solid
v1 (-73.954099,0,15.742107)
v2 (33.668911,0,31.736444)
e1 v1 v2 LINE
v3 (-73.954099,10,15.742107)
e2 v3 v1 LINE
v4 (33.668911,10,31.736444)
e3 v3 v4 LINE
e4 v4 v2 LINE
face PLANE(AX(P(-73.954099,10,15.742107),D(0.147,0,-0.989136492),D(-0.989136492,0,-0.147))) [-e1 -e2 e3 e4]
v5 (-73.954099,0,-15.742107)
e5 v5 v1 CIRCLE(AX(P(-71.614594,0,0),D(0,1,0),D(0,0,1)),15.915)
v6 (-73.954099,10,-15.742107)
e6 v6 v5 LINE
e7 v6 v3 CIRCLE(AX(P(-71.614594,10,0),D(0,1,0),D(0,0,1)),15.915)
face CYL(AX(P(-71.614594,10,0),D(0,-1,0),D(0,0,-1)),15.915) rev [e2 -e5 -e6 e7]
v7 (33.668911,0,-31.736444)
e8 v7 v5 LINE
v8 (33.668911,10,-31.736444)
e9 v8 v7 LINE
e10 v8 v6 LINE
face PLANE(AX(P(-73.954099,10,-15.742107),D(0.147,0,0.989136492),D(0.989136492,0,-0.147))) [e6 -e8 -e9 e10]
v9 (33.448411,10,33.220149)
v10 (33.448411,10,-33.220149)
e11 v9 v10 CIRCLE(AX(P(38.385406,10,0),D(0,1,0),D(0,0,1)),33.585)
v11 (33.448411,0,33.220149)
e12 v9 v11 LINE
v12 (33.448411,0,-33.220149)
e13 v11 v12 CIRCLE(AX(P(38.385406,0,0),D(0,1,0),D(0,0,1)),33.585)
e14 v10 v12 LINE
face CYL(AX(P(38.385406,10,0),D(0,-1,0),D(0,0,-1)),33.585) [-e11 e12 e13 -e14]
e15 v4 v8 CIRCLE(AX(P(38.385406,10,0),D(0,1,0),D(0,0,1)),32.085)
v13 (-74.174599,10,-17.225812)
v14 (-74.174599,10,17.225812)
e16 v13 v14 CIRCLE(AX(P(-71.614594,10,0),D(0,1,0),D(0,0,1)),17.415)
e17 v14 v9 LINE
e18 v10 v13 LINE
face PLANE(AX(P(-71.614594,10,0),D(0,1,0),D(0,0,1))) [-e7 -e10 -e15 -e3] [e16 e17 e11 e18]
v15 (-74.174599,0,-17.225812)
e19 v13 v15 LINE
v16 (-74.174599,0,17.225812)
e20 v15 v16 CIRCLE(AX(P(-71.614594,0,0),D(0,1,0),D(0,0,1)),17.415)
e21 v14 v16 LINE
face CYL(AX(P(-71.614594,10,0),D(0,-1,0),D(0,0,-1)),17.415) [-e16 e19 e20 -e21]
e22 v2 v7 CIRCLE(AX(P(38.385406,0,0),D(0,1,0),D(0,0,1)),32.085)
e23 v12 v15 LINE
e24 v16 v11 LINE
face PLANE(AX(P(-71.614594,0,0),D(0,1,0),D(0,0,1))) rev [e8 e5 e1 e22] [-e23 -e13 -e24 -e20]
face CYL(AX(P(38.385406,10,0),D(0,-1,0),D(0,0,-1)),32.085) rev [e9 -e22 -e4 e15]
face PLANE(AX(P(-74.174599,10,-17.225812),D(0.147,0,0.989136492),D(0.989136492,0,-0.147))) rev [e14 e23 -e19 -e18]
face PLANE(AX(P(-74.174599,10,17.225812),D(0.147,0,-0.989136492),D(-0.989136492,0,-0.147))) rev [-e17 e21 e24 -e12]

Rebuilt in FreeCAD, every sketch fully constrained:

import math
import FreeCAD as App
import Part
import Sketcher
from FreeCAD import Vector
Q = App.Units.Quantity

doc = App.newDocument("Part")
body = doc.addObject("PartDesign::Body", "Body")

sketch1 = body.newObject("Sketcher::SketchObject", "Sketch")
sketch1.AttachmentSupport = (doc.getObject("XZ_Plane"), [""])
sketch1.MapMode = "FlatFace"
sketch1.addGeometry([
    Part.LineSegment(Vector(-74, 17, 0), Vector(33, 33, 0)),
    Part.ArcOfCircle(Part.Circle(Vector(38, 0, 0), Vector(0, 0, 1), 34), math.radians(-98), math.radians(98)),
    Part.LineSegment(Vector(33, -33, 0), Vector(-74, -17, 0)),
    Part.ArcOfCircle(Part.Circle(Vector(-72, 0, 0), Vector(0, 0, 1), 17), math.radians(98), math.radians(262)),
    Part.ArcOfCircle(Part.Circle(Vector(-72, 0, 0), Vector(0, 0, 1), 16), math.radians(98), math.radians(262)),
    Part.LineSegment(Vector(-74, -16, 0), Vector(34, -32, 0)),
    Part.ArcOfCircle(Part.Circle(Vector(38, 0, 0), Vector(0, 0, 1), 32), math.radians(-98), math.radians(98)),
    Part.LineSegment(Vector(34, 32, 0), Vector(-74, 16, 0)),
], False)
sketch1.addConstraint([
    Sketcher.Constraint("Tangent", 0, 2, 1, 2),
    Sketcher.Constraint("Tangent", 1, 1, 2, 1),
    Sketcher.Constraint("Tangent", 2, 2, 3, 2),
    Sketcher.Constraint("Tangent", 3, 1, 0, 1),
    Sketcher.Constraint("Tangent", 4, 2, 5, 1),
    Sketcher.Constraint("Tangent", 5, 2, 6, 1),
    Sketcher.Constraint("Tangent", 6, 2, 7, 1),
    Sketcher.Constraint("Tangent", 7, 2, 4, 1),
    Sketcher.Constraint("Coincident", 4, 3, 3, 3),
    Sketcher.Constraint("Coincident", 6, 3, 1, 3),
    Sketcher.Constraint("Symmetric", 0, 2, 1, 1, -1),
    Sketcher.Constraint("Parallel", 2, 5),
    Sketcher.Constraint("Radius", 1, Q("33.585 mm")),
    Sketcher.Constraint("Radius", 3, Q("17.415 mm")),
    Sketcher.Constraint("Radius", 4, Q("15.915 mm")),
    Sketcher.Constraint("DistanceX", 3, 3, 1, 3, Q("110 mm")),
    Sketcher.Constraint("DistanceX", 2, 2, -1, 1, Q("74.174599 mm")),
])
pad1 = body.newObject("PartDesign::Pad", "Pad")
pad1.Profile = sketch1
pad1.Length = 10
pad1.Reversed = True

doc.recompute()
